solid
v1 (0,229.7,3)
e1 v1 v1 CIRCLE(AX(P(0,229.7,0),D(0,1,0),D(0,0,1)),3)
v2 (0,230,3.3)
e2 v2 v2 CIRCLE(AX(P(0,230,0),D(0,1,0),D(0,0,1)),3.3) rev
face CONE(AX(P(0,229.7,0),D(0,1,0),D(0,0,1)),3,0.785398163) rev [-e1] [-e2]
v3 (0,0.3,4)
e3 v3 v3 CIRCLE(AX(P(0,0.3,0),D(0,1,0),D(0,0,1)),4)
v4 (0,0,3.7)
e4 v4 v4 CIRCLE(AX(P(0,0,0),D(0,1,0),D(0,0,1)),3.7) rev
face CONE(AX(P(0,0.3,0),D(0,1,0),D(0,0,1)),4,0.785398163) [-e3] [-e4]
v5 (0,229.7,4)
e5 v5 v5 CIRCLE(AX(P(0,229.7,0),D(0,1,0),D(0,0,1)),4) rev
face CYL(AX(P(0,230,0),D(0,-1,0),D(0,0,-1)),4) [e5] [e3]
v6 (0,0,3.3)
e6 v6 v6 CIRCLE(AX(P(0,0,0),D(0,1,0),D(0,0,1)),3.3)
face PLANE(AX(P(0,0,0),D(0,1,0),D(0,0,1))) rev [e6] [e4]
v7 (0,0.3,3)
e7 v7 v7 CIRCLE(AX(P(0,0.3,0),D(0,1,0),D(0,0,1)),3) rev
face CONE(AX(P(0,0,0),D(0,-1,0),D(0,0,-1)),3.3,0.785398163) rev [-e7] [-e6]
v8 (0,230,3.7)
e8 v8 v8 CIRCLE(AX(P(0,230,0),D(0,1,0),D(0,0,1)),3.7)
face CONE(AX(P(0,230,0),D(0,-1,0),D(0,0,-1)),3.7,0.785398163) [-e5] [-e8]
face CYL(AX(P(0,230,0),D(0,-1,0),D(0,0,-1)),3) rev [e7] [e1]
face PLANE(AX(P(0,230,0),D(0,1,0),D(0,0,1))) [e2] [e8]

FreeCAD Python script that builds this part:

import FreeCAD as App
import Part
import Sketcher
Q = App.Units.Quantity


def edges_at(feature, points):
    """Names of the edges that pass closest to the given points."""
    edges = feature.Shape.Edges
    near = lambda p: min(range(len(edges)), key=lambda i: edges[i].distToShape(Part.Vertex(*p))[0])
    return sorted({f"Edge{near(p) + 1}" for p in points})

doc = App.newDocument("Part")
body = doc.addObject("PartDesign::Body", "Body")

sketch1 = doc.addObject("Sketcher::SketchObject", "Sketch")
body.addObject(sketch1)
sketch1.AttachmentSupport = (doc.XZ_Plane, [""])
sketch1.MapMode = "FlatFace"
sketch1.addGeometry([
    Part.Circle(App.Vector(0, 0, 0), App.Vector(0, 0, 1), 4),
    Part.Circle(App.Vector(0, 0, 0), App.Vector(0, 0, 1), 3),
], False)
sketch1.addConstraint([
    Sketcher.Constraint("Coincident", 0, 3, -1, 1),
    Sketcher.Constraint("Coincident", 1, 3, -1, 1),
    Sketcher.Constraint("Diameter", 0, Q("8 mm")),
    Sketcher.Constraint("Diameter", 1, Q("6 mm")),
])
pad1 = doc.addObject("PartDesign::Pad", "Pad")
body.addObject(pad1)
pad1.Profile = sketch1
pad1.Length = 230
pad1.Reversed = True
doc.recompute()

chamfer = doc.addObject("PartDesign::Chamfer", "Chamfer")
body.addObject(chamfer)
chamfer.Base = (pad1, edges_at(pad1, [
    (0, 0, -4),
    (0, 230, -4),
    (0, 0, -3),
    (0, 230, -3),
]))
chamfer.Size = 0.3

doc.recompute()
